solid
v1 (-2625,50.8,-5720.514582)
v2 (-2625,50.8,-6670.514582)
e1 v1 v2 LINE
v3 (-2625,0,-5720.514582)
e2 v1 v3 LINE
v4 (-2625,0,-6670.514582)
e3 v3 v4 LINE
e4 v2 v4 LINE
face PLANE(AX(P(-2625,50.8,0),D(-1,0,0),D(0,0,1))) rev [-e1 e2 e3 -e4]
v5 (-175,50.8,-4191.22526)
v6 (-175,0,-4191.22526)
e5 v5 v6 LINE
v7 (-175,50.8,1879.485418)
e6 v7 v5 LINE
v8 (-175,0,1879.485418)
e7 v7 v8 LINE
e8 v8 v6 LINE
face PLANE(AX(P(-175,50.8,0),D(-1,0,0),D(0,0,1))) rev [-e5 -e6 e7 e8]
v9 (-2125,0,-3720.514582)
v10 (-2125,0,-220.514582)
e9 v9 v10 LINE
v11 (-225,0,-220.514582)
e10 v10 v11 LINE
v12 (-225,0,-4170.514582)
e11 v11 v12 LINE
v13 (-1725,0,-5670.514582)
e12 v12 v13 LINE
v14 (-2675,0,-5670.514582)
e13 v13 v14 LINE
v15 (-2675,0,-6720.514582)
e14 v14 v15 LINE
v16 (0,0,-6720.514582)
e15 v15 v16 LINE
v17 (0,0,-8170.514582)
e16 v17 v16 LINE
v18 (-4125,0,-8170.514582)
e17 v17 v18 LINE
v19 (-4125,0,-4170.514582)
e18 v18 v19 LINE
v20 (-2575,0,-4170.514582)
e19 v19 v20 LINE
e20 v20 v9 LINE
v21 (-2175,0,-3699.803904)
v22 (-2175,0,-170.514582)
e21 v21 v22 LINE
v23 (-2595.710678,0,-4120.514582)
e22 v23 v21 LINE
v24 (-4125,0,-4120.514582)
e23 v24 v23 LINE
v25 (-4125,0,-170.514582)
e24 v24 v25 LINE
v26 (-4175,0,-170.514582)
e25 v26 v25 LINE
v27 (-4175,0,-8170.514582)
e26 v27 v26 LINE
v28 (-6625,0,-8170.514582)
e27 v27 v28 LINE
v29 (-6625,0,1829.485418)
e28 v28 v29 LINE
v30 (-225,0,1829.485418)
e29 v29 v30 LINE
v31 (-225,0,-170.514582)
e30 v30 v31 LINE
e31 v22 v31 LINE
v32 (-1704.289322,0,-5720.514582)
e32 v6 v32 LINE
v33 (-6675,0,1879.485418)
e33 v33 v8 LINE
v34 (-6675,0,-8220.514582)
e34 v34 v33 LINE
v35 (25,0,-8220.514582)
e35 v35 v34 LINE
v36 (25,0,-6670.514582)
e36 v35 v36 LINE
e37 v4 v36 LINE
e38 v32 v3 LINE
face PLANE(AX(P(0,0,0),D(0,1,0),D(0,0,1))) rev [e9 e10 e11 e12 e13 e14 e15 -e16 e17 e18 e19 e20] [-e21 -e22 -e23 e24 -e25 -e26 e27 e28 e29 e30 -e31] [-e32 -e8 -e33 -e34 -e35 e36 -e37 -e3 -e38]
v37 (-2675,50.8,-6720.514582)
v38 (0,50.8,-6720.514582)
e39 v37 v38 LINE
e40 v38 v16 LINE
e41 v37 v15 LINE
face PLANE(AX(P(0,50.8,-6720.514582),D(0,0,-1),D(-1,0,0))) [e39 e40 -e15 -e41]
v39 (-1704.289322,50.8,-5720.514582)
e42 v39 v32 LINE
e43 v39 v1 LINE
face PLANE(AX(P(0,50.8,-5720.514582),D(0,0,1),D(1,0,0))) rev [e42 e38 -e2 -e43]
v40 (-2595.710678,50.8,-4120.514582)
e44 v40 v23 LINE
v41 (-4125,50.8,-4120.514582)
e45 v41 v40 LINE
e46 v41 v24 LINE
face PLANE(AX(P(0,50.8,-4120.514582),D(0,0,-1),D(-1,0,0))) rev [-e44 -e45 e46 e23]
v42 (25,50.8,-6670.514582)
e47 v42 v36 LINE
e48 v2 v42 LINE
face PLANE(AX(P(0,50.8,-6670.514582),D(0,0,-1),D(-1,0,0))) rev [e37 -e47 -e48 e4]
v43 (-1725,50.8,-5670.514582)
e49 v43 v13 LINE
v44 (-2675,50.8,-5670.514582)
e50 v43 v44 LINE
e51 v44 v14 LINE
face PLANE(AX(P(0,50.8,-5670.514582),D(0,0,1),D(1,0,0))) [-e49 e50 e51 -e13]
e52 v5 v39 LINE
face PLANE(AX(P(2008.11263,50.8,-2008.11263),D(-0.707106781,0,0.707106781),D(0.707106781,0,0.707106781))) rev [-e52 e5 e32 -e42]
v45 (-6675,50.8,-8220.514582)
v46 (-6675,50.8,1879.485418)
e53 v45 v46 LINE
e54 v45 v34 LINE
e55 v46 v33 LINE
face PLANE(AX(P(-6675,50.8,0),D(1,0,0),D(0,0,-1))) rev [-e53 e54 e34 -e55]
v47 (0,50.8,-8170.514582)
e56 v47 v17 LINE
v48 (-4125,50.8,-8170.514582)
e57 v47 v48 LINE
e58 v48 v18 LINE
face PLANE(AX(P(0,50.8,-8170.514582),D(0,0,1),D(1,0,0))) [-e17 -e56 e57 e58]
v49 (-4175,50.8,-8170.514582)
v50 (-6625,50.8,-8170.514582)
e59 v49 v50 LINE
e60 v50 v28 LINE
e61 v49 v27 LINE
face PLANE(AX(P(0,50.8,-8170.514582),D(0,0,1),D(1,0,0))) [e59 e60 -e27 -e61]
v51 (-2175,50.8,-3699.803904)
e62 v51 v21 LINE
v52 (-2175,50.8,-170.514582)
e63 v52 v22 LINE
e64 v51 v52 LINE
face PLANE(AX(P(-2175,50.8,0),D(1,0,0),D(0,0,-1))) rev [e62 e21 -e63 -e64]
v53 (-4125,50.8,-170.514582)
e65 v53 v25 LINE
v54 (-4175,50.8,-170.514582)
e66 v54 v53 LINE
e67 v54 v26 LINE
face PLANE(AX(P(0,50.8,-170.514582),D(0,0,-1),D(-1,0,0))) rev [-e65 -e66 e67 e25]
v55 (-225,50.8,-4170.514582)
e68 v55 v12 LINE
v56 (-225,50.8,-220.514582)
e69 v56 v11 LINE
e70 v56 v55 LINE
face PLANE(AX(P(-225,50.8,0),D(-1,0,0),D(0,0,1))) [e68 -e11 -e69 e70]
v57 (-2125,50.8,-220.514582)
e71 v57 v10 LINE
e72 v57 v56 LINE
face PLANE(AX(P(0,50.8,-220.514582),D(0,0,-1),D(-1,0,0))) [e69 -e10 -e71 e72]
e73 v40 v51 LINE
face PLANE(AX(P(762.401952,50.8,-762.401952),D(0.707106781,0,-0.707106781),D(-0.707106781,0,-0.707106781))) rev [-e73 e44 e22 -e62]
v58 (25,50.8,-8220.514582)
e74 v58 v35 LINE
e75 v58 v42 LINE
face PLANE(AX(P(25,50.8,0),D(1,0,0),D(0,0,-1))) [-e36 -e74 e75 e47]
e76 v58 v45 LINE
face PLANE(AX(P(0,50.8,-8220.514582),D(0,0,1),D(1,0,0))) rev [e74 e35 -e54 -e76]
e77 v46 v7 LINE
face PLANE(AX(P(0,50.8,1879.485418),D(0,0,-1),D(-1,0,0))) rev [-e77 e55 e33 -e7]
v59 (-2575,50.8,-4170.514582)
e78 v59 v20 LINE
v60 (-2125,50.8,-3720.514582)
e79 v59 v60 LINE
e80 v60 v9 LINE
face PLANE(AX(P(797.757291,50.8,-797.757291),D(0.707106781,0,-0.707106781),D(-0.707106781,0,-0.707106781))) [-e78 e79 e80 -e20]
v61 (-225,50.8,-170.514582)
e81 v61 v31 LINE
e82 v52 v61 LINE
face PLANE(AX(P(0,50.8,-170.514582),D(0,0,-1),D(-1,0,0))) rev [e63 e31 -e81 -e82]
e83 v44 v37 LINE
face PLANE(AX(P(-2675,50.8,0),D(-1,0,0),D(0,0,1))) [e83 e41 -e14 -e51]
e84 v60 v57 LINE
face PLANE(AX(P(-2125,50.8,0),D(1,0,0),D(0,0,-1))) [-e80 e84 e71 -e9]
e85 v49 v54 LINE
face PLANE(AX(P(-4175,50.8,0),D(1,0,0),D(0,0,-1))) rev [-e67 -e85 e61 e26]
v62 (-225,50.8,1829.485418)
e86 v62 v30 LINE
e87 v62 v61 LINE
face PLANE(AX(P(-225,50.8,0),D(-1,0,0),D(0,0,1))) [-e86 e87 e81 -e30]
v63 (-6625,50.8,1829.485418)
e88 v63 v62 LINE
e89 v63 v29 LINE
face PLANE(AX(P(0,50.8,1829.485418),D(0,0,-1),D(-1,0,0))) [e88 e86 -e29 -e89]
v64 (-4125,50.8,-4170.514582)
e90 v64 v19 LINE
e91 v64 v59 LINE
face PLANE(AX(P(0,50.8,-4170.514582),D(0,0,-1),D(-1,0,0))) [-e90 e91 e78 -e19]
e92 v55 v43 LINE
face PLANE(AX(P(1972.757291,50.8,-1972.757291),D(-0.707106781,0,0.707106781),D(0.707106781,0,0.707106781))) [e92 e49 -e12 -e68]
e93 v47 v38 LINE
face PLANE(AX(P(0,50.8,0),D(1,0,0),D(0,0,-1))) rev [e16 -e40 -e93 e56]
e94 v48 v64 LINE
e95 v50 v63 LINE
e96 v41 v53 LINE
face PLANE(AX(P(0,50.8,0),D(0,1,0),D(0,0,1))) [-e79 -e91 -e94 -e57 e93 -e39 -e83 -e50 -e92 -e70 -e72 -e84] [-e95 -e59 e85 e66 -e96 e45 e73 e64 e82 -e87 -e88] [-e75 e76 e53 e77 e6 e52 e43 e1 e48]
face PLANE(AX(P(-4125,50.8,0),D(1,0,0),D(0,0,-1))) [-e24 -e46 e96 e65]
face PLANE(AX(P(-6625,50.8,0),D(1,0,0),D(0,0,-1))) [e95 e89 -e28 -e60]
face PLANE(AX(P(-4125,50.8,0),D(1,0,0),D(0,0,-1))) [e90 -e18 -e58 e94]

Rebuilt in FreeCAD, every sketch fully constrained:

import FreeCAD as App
import Part
import Sketcher

V = App.Vector
Q = App.Units.Quantity

doc = App.newDocument("Part")
params = doc.addObject("Spreadsheet::Sheet", "Params")
for row, (alias, value) in enumerate([
    ("sketch1_width", "2650 mm"),
    ("sketch1_width2", "6700 mm"),
    ("sketch1_width3", "6500 mm"),
    ("sketch1_width4", "4125 mm"),
    ("sketch1_width5", "2675 mm"),
    ("pad1_length", "50.8 mm"),
], start=1):
    params.set(f"A{row}", alias)
    params.set(f"B{row}", "=" + value)
    params.setAlias(f"B{row}", alias)

body = doc.addObject("PartDesign::Body", "Body")

sketch1 = doc.addObject("Sketcher::SketchObject", "Sketch")
body.addObject(sketch1)
sketch1.AttachmentSupport = (doc.XZ_Plane, [""])
sketch1.MapMode = "FlatFace"
sketch1.addGeometry([
    Part.LineSegment(V(-2625, -6671, 0), V(25, -6671, 0)),
    Part.LineSegment(V(25, -6671, 0), V(25, -8221, 0)),
    Part.LineSegment(V(25, -8221, 0), V(-6675, -8221, 0)),
    Part.LineSegment(V(-6675, -8221, 0), V(-6675, 1879, 0)),
    Part.LineSegment(V(-6675, 1879, 0), V(-175, 1879, 0)),
    Part.LineSegment(V(-175, 1879, 0), V(-175, -4191, 0)),
    Part.LineSegment(V(-175, -4191, 0), V(-1704, -5721, 0)),
    Part.LineSegment(V(-1704, -5721, 0), V(-2625, -5721, 0)),
    Part.LineSegment(V(-2625, -5721, 0), V(-2625, -6671, 0)),
    Part.LineSegment(V(-4125, -8171, 0), V(0, -8171, 0)),
    Part.LineSegment(V(0, -8171, 0), V(0, -6721, 0)),
    Part.LineSegment(V(0, -6721, 0), V(-2675, -6721, 0)),
    Part.LineSegment(V(-2675, -6721, 0), V(-2675, -5671, 0)),
    Part.LineSegment(V(-2675, -5671, 0), V(-1725, -5671, 0)),
    Part.LineSegment(V(-1725, -5671, 0), V(-225, -4171, 0)),
    Part.LineSegment(V(-225, -4171, 0), V(-225, -221, 0)),
    Part.LineSegment(V(-225, -221, 0), V(-2125, -221, 0)),
    Part.LineSegment(V(-2125, -221, 0), V(-2125, -3721, 0)),
    Part.LineSegment(V(-2125, -3721, 0), V(-2575, -4171, 0)),
    Part.LineSegment(V(-2575, -4171, 0), V(-4125, -4171, 0)),
    Part.LineSegment(V(-4125, -4171, 0), V(-4125, -8171, 0)),
    Part.LineSegment(V(-2175, -171, 0), V(-225, -171, 0)),
    Part.LineSegment(V(-225, -171, 0), V(-225, 1829, 0)),
    Part.LineSegment(V(-225, 1829, 0), V(-6625, 1829, 0)),
    Part.LineSegment(V(-6625, 1829, 0), V(-6625, -8171, 0)),
    Part.LineSegment(V(-6625, -8171, 0), V(-4175, -8171, 0)),
    Part.LineSegment(V(-4175, -8171, 0), V(-4175, -171, 0)),
    Part.LineSegment(V(-4175, -171, 0), V(-4125, -171, 0)),
    Part.LineSegment(V(-4125, -171, 0), V(-4125, -4121, 0)),
    Part.LineSegment(V(-4125, -4121, 0), V(-2596, -4121, 0)),
    Part.LineSegment(V(-2596, -4121, 0), V(-2175, -3700, 0)),
    Part.LineSegment(V(-2175, -3700, 0), V(-2175, -171, 0)),
], False)
sketch1.addConstraint([
    Sketcher.Constraint("Coincident", 0, 2, 1, 1),
    Sketcher.Constraint("Coincident", 1, 2, 2, 1),
    Sketcher.Constraint("Coincident", 2, 2, 3, 1),
    Sketcher.Constraint("Coincident", 3, 2, 4, 1),
    Sketcher.Constraint("Coincident", 4, 2, 5, 1),
    Sketcher.Constraint("Coincident", 5, 2, 6, 1),
    Sketcher.Constraint("Coincident", 6, 2, 7, 1),
    Sketcher.Constraint("Coincident", 7, 2, 8, 1),
    Sketcher.Constraint("Coincident", 8, 2, 0, 1),
    Sketcher.Constraint("Coincident", 9, 2, 10, 1),
    Sketcher.Constraint("Coincident", 10, 2, 11, 1),
    Sketcher.Constraint("Coincident", 11, 2, 12, 1),
    Sketcher.Constraint("Coincident", 12, 2, 13, 1),
    Sketcher.Constraint("Coincident", 13, 2, 14, 1),
    Sketcher.Constraint("Coincident", 14, 2, 15, 1),
    Sketcher.Constraint("Coincident", 15, 2, 16, 1),
    Sketcher.Constraint("Coincident", 16, 2, 17, 1),
    Sketcher.Constraint("Coincident", 17, 2, 18, 1),
    Sketcher.Constraint("Coincident", 18, 2, 19, 1),
    Sketcher.Constraint("Coincident", 19, 2, 20, 1),
    Sketcher.Constraint("Coincident", 20, 2, 9, 1),
    Sketcher.Constraint("Coincident", 21, 2, 22, 1),
    Sketcher.Constraint("Coincident", 22, 2, 23, 1),
    Sketcher.Constraint("Coincident", 23, 2, 24, 1),
    Sketcher.Constraint("Coincident", 24, 2, 25, 1),
    Sketcher.Constraint("Coincident", 25, 2, 26, 1),
    Sketcher.Constraint("Coincident", 26, 2, 27, 1),
    Sketcher.Constraint("Coincident", 27, 2, 28, 1),
    Sketcher.Constraint("Coincident", 28, 2, 29, 1),
    Sketcher.Constraint("Coincident", 29, 2, 30, 1),
    Sketcher.Constraint("Coincident", 30, 2, 31, 1),
    Sketcher.Constraint("Coincident", 31, 2, 21, 1),
    Sketcher.Constraint("Horizontal", 0),
    Sketcher.Constraint("Vertical", 1),
    Sketcher.Constraint("Horizontal", 2),
    Sketcher.Constraint("Vertical", 3),
    Sketcher.Constraint("Horizontal", 4),
    Sketcher.Constraint("Vertical", 5),
    Sketcher.Constraint("Horizontal", 7),
    Sketcher.Constraint("Vertical", 8),
    Sketcher.Constraint("Horizontal", 9),
    Sketcher.Constraint("Vertical", 10),
    Sketcher.Constraint("Horizontal", 11),
    Sketcher.Constraint("Vertical", 12),
    Sketcher.Constraint("Horizontal", 13),
    Sketcher.Constraint("Vertical", 15),
    Sketcher.Constraint("Horizontal", 16),
    Sketcher.Constraint("Vertical", 17),
    Sketcher.Constraint("Horizontal", 19),
    Sketcher.Constraint("Vertical", 20),
    Sketcher.Constraint("Horizontal", 21),
    Sketcher.Constraint("Vertical", 22),
    Sketcher.Constraint("Horizontal", 23),
    Sketcher.Constraint("Vertical", 24),
    Sketcher.Constraint("Horizontal", 25),
    Sketcher.Constraint("Vertical", 26),
    Sketcher.Constraint("Horizontal", 27),
    Sketcher.Constraint("Vertical", 28),
    Sketcher.Constraint("Horizontal", 29),
    Sketcher.Constraint("Vertical", 31),
    Sketcher.Constraint("PointOnObject", 9, 2, -2),
    Sketcher.Constraint("Parallel", 6, 14),
    Sketcher.Constraint("Parallel", 14, 18),
    Sketcher.Constraint("Parallel", 18, 30),
    Sketcher.Constraint("Horizontal", 14, 2, 18, 2),
    Sketcher.Constraint("Horizontal", 20, 2, 24, 2),
    Sketcher.Constraint("Horizontal", 21, 2, 26, 2),
    Sketcher.Constraint("Vertical", 15, 2, 21, 2),
    Sketcher.Constraint("Vertical", 20, 2, 27, 2),
    Sketcher.Constraint("Equal", 19, 1),
    Sketcher.Constraint("Equal", 13, 8),
    Sketcher.Constraint("Equal", 15, 28),
    Sketcher.Constraint("DistanceX", 0, 1, 0, 2, Q("2650 mm")),
    Sketcher.Constraint("DistanceX", 2, 2, 2, 1, Q("6700 mm")),
    Sketcher.Constraint("DistanceX", 4, 1, 4, 2, Q("6500 mm")),
    Sketcher.Constraint("DistanceX", 9, 1, 9, 2, Q("4125 mm")),
    Sketcher.Constraint("DistanceX", 11, 2, 11, 1, Q("2675 mm")),
    Sketcher.Constraint("DistanceX", 13, 1, 13, 2, Q("950 mm")),
    Sketcher.Constraint("DistanceX", 16, 2, 16, 1, Q("1900 mm")),
    Sketcher.Constraint("DistanceX", 19, 2, 19, 1, Q("1550 mm")),
    Sketcher.Constraint("DistanceX", 21, 1, 21, 2, Q("1950 mm")),
    Sketcher.Constraint("DistanceX", 23, 2, 23, 1, Q("6400 mm")),
    Sketcher.Constraint("DistanceX", 25, 1, 25, 2, Q("2450 mm")),
    Sketcher.Constraint("DistanceX", 27, 1, 27, 2, Q("50 mm")),
    Sketcher.Constraint("DistanceY", 3, 1, 3, 2, Q("10100 mm")),
    Sketcher.Constraint("DistanceY", 10, 1, 10, 2, Q("1450 mm")),
    Sketcher.Constraint("DistanceY", 12, 1, 12, 2, Q("1050 mm")),
    Sketcher.Constraint("DistanceY", 15, 1, 15, 2, Q("3950 mm")),
    Sketcher.Constraint("DistanceY", 17, 2, 17, 1, Q("3500 mm")),
    Sketcher.Constraint("DistanceY", 22, 1, 22, 2, Q("2000 mm")),
    Sketcher.Constraint("DistanceY", 24, 2, 24, 1, Q("10000 mm")),
    Sketcher.Constraint("DistanceX", -1, 1, 0, 2, Q("25 mm")),
    Sketcher.Constraint("DistanceY", 1, 2, 9, 2, Q("50 mm")),
    Sketcher.Constraint("Distance", 6, Q("2162.7417 mm")),
    Sketcher.Constraint("DistanceX", 29, 1, 29, 2, Q("1529.289322 mm")),
    Sketcher.Constraint("DistanceY", 5, 2, -1, 1, Q("4191.22526 mm")),
])
sketch1.setExpression("Constraints[72]", "Params.sketch1_width")
sketch1.setExpression("Constraints[73]", "Params.sketch1_width2")
sketch1.setExpression("Constraints[74]", "Params.sketch1_width3")
sketch1.setExpression("Constraints[75]", "Params.sketch1_width4")
sketch1.setExpression("Constraints[76]", "Params.sketch1_width5")
pad1 = doc.addObject("PartDesign::Pad", "Pad")
body.addObject(pad1)
pad1.Profile = sketch1
pad1.setExpression("Length", "Params.pad1_length")
pad1.Reversed = True

doc.recompute()
